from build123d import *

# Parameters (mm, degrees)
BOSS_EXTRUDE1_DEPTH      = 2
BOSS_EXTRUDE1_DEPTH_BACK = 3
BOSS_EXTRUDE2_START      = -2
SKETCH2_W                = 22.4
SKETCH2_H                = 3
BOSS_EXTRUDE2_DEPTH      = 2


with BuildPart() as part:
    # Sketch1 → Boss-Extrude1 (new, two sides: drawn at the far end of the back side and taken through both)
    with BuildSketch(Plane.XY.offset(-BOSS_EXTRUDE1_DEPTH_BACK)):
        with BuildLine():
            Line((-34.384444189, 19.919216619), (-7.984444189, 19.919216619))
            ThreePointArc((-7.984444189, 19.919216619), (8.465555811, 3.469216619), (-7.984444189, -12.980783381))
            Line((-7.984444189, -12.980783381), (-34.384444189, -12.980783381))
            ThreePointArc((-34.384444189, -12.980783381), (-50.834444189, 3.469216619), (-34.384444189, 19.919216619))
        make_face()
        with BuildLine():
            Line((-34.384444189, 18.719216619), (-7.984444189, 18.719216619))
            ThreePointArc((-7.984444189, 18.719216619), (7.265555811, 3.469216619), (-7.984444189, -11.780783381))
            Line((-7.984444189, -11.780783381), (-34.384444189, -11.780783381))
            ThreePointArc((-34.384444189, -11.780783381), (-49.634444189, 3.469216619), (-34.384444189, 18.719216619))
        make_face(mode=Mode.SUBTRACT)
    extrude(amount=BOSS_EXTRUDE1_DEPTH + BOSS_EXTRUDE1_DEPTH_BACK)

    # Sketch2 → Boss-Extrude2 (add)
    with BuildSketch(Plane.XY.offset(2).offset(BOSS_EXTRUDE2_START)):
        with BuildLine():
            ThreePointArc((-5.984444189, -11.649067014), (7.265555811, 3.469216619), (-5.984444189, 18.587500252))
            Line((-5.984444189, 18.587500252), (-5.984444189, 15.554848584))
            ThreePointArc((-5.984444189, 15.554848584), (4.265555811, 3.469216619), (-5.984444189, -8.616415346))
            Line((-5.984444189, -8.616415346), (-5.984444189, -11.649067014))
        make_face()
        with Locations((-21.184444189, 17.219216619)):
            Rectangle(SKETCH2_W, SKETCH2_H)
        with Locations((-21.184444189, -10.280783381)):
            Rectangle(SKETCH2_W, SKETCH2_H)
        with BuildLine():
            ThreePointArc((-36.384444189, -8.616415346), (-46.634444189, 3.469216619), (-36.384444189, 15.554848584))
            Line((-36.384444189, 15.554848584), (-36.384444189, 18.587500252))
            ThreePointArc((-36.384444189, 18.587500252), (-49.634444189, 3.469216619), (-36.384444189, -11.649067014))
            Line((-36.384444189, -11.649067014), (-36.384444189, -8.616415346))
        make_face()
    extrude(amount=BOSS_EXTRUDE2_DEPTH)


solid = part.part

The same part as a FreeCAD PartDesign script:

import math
import FreeCAD as App
import Part
import Sketcher

V = App.Vector
Q = App.Units.Quantity

doc = App.newDocument("Part")
body = doc.addObject("PartDesign::Body", "Body")

# Sketch on XY plane
sketch1 = body.newObject("Sketcher::SketchObject", "Sketch")
sketch1.AttachmentSupport = (doc.getObject("XY_Plane"), [""])
sketch1.MapMode = "FlatFace"
sketch1.addGeometry([
    Part.LineSegment(V(-7.984444, 19.919217, 0), V(-34.384444, 19.919217, 0)),  # 0
    Part.ArcOfCircle(Part.Circle(V(-34.384444, 3.469217, 0), V(0, 0, 1), 16.45), math.radians(90), math.radians(270)),  # 1
    Part.LineSegment(V(-34.384444, -12.980783, 0), V(-7.984444, -12.980783, 0)),  # 2
    Part.ArcOfCircle(Part.Circle(V(-7.984444, 3.469217, 0), V(0, 0, 1), 16.45), math.radians(-90), math.radians(90)),  # 3
    Part.LineSegment(V(-34.384444, 18.719217, 0), V(-7.984444, 18.719217, 0)),  # 4
    Part.ArcOfCircle(Part.Circle(V(-7.984444, 3.469217, 0), V(0, 0, 1), 15.25), math.radians(-90), math.radians(90)),  # 5
    Part.LineSegment(V(-7.984444, -11.780783, 0), V(-34.384444, -11.780783, 0)),  # 6
    Part.ArcOfCircle(Part.Circle(V(-34.384444, 3.469217, 0), V(0, 0, 1), 15.25), math.radians(90), math.radians(270)),  # 7
], False)
sketch1.addConstraint([
    Sketcher.Constraint("Tangent", 0, 2, 1, 1),
    Sketcher.Constraint("Tangent", 1, 2, 2, 1),
    Sketcher.Constraint("Tangent", 2, 2, 3, 1),
    Sketcher.Constraint("Tangent", 3, 2, 0, 1),
    Sketcher.Constraint("Tangent", 4, 2, 5, 2),
    Sketcher.Constraint("Tangent", 5, 1, 6, 1),
    Sketcher.Constraint("Tangent", 6, 2, 7, 2),
    Sketcher.Constraint("Tangent", 7, 1, 4, 1),
    Sketcher.Constraint("Horizontal", 0),
    Sketcher.Constraint("Horizontal", 2),
    Sketcher.Constraint("Horizontal", 4),
    Sketcher.Constraint("Horizontal", 6),
    Sketcher.Constraint("Coincident", 5, 3, 3, 3),
    Sketcher.Constraint("Vertical", 7, 3, 0, 2),
    Sketcher.Constraint("Radius", 1, Q("16.45 mm")),
    Sketcher.Constraint("Radius", 5, Q("15.25 mm")),
    Sketcher.Constraint("DistanceX", 0, 2, 0, 1, Q("26.4 mm")),
    Sketcher.Constraint("DistanceX", 1, 3, -1, 1, Q("34.384444 mm")),
    Sketcher.Constraint("DistanceY", -1, 1, 1, 3, Q("3.469217 mm")),
])
pad1 = body.newObject("PartDesign::Pad", "Pad")
pad1.Profile = sketch1
pad1.Type = "TwoLengths"
pad1.Length = 2
pad1.Length2 = 3

# Sketch on XY plane
sketch2 = body.newObject("Sketcher::SketchObject", "Sketch001")
sketch2.AttachmentSupport = (doc.getObject("XY_Plane"), [""])
sketch2.MapMode = "FlatFace"
sketch2.addGeometry([
    Part.ArcOfCircle(Part.Circle(V(-7.984444, 3.469217, 0), V(0, 0, 1), 15.25), math.radians(-82.464091), math.radians(82.464091)),  # 0
    Part.LineSegment(V(-5.984444, 18.5875, 0), V(-5.984444, 15.554849, 0)),  # 1
    Part.ArcOfCircle(Part.Circle(V(-7.984444, 3.469217, 0), V(0, 0, 1), 12.25), math.radians(-80.603523), math.radians(80.603523)),  # 2
    Part.LineSegment(V(-5.984444, -8.616415, 0), V(-5.984444, -11.649067, 0)),  # 3
    Part.LineSegment(V(-32.384444, 18.719217, 0), V(-32.384444, 15.719217, 0)),  # 4
    Part.LineSegment(V(-32.384444, 15.719217, 0), V(-9.984444, 15.719217, 0)),  # 5
    Part.LineSegment(V(-9.984444, 15.719217, 0), V(-9.984444, 18.719217, 0)),  # 6
    Part.LineSegment(V(-9.984444, 18.719217, 0), V(-32.384444, 18.719217, 0)),  # 7
    Part.LineSegment(V(-32.384444, -8.780783, 0), V(-32.384444, -11.780783, 0)),  # 8
    Part.LineSegment(V(-32.384444, -11.780783, 0), V(-9.984444, -11.780783, 0)),  # 9
    Part.LineSegment(V(-9.984444, -11.780783, 0), V(-9.984444, -8.780783, 0)),  # 10
    Part.LineSegment(V(-9.984444, -8.780783, 0), V(-32.384444, -8.780783, 0)),  # 11
    Part.ArcOfCircle(Part.Circle(V(-34.384444, 3.469217, 0), V(0, 0, 1), 12.25), math.radians(99.396477), math.radians(260.603523)),  # 12
    Part.LineSegment(V(-36.384444, 15.554849, 0), V(-36.384444, 18.5875, 0)),  # 13
    Part.ArcOfCircle(Part.Circle(V(-34.384444, 3.469217, 0), V(0, 0, 1), 15.25), math.radians(97.535909), math.radians(262.464091)),  # 14
    Part.LineSegment(V(-36.384444, -11.649067, 0), V(-36.384444, -8.616415, 0)),  # 15
], False)
sketch2.addConstraint([
    Sketcher.Constraint("Coincident", 0, 2, 1, 1),
    Sketcher.Constraint("Coincident", 1, 2, 2, 2),
    Sketcher.Constraint("Coincident", 2, 1, 3, 1),
    Sketcher.Constraint("Coincident", 3, 2, 0, 1),
    Sketcher.Constraint("Coincident", 4, 2, 5, 1),
    Sketcher.Constraint("Coincident", 5, 2, 6, 1),
    Sketcher.Constraint("Coincident", 6, 2, 7, 1),
    Sketcher.Constraint("Coincident", 7, 2, 4, 1),
    Sketcher.Constraint("Coincident", 8, 2, 9, 1),
    Sketcher.Constraint("Coincident", 9, 2, 10, 1),
    Sketcher.Constraint("Coincident", 10, 2, 11, 1),
    Sketcher.Constraint("Coincident", 11, 2, 8, 1),
    Sketcher.Constraint("Coincident", 12, 1, 13, 1),
    Sketcher.Constraint("Coincident", 13, 2, 14, 1),
    Sketcher.Constraint("Coincident", 14, 2, 15, 1),
    Sketcher.Constraint("Coincident", 15, 2, 12, 2),
    Sketcher.Constraint("Vertical", 1),
    Sketcher.Constraint("Vertical", 3),
    Sketcher.Constraint("Vertical", 4),
    Sketcher.Constraint("Horizontal", 5),
    Sketcher.Constraint("Vertical", 6),
    Sketcher.Constraint("Horizontal", 7),
    Sketcher.Constraint("Vertical", 8),
    Sketcher.Constraint("Horizontal", 9),
    Sketcher.Constraint("Vertical", 10),
    Sketcher.Constraint("Horizontal", 11),
    Sketcher.Constraint("Vertical", 13),
    Sketcher.Constraint("Vertical", 15),
    Sketcher.Constraint("Coincident", 2, 3, 0, 3),
    Sketcher.Constraint("Coincident", 14, 3, 12, 3),
    Sketcher.Constraint("Equal", 2, 12),
    Sketcher.Constraint("Equal", 0, 14),
    Sketcher.Constraint("Horizontal", 2, 3, 12, 3),
    Sketcher.Constraint("Horizontal", 1, 2, 12, 1),
    Sketcher.Constraint("Horizontal", 3, 2, 14, 2),
    Sketcher.Constraint("Vertical", 1, 2, 2, 1),
    Sketcher.Constraint("Vertical", 7, 2, 8, 2),
    Sketcher.Constraint("Vertical", 6, 2, 9, 2),
    Sketcher.Constraint("Equal", 6, 8),
    Sketcher.Constraint("DistanceY", 4, 2, 4, 1, Q("3 mm")),
    Sketcher.Constraint("Radius", 0, Q("15.25 mm")),
    Sketcher.Constraint("Radius", 2, Q("12.25 mm")),
    Sketcher.Constraint("DistanceX", 5, 1, 5, 2, Q("22.4 mm")),
    Sketcher.Constraint("DistanceX", 0, 3, 0, 2, Q("2 mm")),
    Sketcher.Constraint("DistanceX", 12, 3, 4, 2, Q("2 mm")),
    Sketcher.Constraint("DistanceX", 5, 2, 1, 2, Q("4 mm")),
    Sketcher.Constraint("DistanceY", 8, 2, 4, 2, Q("27.5 mm")),
    Sketcher.Constraint("DistanceY", 12, 3, 4, 2, Q("12.25 mm")),
    Sketcher.Constraint("DistanceY", -1, 1, 0, 2, Q("18.5875 mm")),
    Sketcher.Constraint("DistanceX", 0, 3, -1, 1, Q("7.984444 mm")),
])
pad2 = body.newObject("PartDesign::Pad", "Pad001")
pad2.Profile = sketch2
pad2.Length = 2

doc.recompute()
